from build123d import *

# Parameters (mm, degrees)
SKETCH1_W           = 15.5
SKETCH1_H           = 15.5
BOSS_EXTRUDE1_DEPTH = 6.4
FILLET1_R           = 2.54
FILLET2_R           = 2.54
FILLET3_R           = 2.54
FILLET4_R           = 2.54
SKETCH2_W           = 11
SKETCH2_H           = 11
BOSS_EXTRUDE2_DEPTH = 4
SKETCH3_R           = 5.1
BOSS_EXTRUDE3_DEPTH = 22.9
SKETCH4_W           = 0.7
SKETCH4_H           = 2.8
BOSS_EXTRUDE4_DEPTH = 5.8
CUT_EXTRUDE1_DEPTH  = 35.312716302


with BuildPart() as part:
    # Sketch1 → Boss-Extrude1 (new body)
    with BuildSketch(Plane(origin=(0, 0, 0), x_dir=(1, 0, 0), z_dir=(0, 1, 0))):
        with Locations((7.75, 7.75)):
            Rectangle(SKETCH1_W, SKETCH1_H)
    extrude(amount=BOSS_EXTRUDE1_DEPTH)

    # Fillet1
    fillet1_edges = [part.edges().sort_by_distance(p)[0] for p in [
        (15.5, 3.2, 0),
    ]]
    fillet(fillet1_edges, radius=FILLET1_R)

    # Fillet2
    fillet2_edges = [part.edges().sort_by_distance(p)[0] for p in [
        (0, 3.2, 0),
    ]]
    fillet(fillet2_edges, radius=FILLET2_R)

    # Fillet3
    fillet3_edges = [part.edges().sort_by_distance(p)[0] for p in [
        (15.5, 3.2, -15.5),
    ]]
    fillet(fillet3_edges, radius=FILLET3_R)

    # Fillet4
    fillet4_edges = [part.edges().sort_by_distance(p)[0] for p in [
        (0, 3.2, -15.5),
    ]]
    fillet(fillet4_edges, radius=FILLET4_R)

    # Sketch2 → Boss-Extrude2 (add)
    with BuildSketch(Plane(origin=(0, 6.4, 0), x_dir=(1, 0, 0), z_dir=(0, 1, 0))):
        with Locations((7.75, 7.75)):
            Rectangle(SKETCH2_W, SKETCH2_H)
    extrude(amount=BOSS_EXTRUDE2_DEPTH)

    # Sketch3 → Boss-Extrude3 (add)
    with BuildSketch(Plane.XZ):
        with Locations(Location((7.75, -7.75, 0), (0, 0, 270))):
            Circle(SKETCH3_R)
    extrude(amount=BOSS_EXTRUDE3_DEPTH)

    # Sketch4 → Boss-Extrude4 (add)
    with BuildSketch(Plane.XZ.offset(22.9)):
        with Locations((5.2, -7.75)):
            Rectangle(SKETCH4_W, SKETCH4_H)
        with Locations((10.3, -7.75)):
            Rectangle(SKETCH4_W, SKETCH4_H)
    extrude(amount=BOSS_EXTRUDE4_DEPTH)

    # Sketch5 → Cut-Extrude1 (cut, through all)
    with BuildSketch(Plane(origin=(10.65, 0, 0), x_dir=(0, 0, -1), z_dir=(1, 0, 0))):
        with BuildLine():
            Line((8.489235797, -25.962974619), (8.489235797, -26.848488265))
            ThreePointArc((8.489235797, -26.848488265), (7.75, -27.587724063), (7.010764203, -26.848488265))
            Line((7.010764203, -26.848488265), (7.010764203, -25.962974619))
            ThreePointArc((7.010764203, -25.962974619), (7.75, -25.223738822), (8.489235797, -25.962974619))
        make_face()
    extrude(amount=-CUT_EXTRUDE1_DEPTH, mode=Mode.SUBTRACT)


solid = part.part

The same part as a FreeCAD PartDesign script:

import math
import FreeCAD as App
import Part
import Sketcher
from FreeCAD import Vector
Q = App.Units.Quantity


def edges_at(feature, points):
    """Names of the edges that pass closest to the given points."""
    edges = feature.Shape.Edges
    near = lambda p: min(range(len(edges)), key=lambda i: edges[i].distToShape(Part.Vertex(*p))[0])
    return sorted({f"Edge{near(p) + 1}" for p in points})

doc = App.newDocument("Part")
body = doc.addObject("PartDesign::Body", "Body")

sketch1 = doc.addObject("Sketcher::SketchObject", "Sketch")
body.addObject(sketch1)
sketch1.AttachmentSupport = (doc.XZ_Plane, [""])
sketch1.MapMode = "FlatFace"
sketch1.addGeometry(Part.LineSegment(Vector(0, -15.5, 0), Vector(0, 0, 0)), False)
sketch1.addGeometry(Part.LineSegment(Vector(0, 0, 0), Vector(15.5, 0, 0)), False)
sketch1.addGeometry(Part.LineSegment(Vector(15.5, 0, 0), Vector(15.5, -15.5, 0)), False)
sketch1.addGeometry(Part.LineSegment(Vector(15.5, -15.5, 0), Vector(0, -15.5, 0)), False)
sketch1.addConstraint(Sketcher.Constraint("Coincident", 0, 2, 1, 1))
sketch1.addConstraint(Sketcher.Constraint("Coincident", 1, 2, 2, 1))
sketch1.addConstraint(Sketcher.Constraint("Coincident", 2, 2, 3, 1))
sketch1.addConstraint(Sketcher.Constraint("Coincident", 3, 2, 0, 1))
sketch1.addConstraint(Sketcher.Constraint("Vertical", 0))
sketch1.addConstraint(Sketcher.Constraint("Horizontal", 1))
sketch1.addConstraint(Sketcher.Constraint("Vertical", 2))
sketch1.addConstraint(Sketcher.Constraint("Horizontal", 3))
sketch1.addConstraint(Sketcher.Constraint("Coincident", 0, 2, -1, 1))
sketch1.addConstraint(Sketcher.Constraint("Equal", 3, 0))
sketch1.addConstraint(Sketcher.Constraint("DistanceX", 1, 1, 1, 2, Q("15.5 mm")))
pad1 = doc.addObject("PartDesign::Pad", "Pad")
body.addObject(pad1)
pad1.Profile = sketch1
pad1.Length = 6.4
pad1.Reversed = True
doc.recompute()

fillet = doc.addObject("PartDesign::Fillet", "Fillet")
body.addObject(fillet)
fillet.Base = (pad1, edges_at(pad1, [(15.5, 3.2, 0)]))
fillet.Radius = 2.54
doc.recompute()

fillet2 = doc.addObject("PartDesign::Fillet", "Fillet001")
body.addObject(fillet2)
fillet2.Base = (fillet, edges_at(fillet, [(0, 3.2, 0)]))
fillet2.Radius = 2.54
doc.recompute()

fillet3 = doc.addObject("PartDesign::Fillet", "Fillet002")
body.addObject(fillet3)
fillet3.Base = (fillet2, edges_at(fillet2, [(15.5, 3.2, -15.5)]))
fillet3.Radius = 2.54
doc.recompute()

fillet4 = doc.addObject("PartDesign::Fillet", "Fillet003")
body.addObject(fillet4)
fillet4.Base = (fillet3, edges_at(fillet3, [(0, 3.2, -15.5)]))
fillet4.Radius = 2.54

sketch2 = doc.addObject("Sketcher::SketchObject", "Sketch001")
body.addObject(sketch2)
sketch2.AttachmentSupport = (doc.XZ_Plane, [""])
sketch2.MapMode = "FlatFace"
sketch2.AttachmentOffset = App.Placement(Vector(0, 0, -6.4), App.Rotation())
sketch2.addGeometry(Part.LineSegment(Vector(2.25, -13.25, 0), Vector(2.25, -2.25, 0)), False)
sketch2.addGeometry(Part.LineSegment(Vector(2.25, -2.25, 0), Vector(13.25, -2.25, 0)), False)
sketch2.addGeometry(Part.LineSegment(Vector(13.25, -2.25, 0), Vector(13.25, -13.25, 0)), False)
sketch2.addGeometry(Part.LineSegment(Vector(13.25, -13.25, 0), Vector(2.25, -13.25, 0)), False)
sketch2.addConstraint(Sketcher.Constraint("Coincident", 0, 2, 1, 1))
sketch2.addConstraint(Sketcher.Constraint("Coincident", 1, 2, 2, 1))
sketch2.addConstraint(Sketcher.Constraint("Coincident", 2, 2, 3, 1))
sketch2.addConstraint(Sketcher.Constraint("Coincident", 3, 2, 0, 1))
sketch2.addConstraint(Sketcher.Constraint("Vertical", 0))
sketch2.addConstraint(Sketcher.Constraint("Horizontal", 1))
sketch2.addConstraint(Sketcher.Constraint("Vertical", 2))
sketch2.addConstraint(Sketcher.Constraint("Horizontal", 3))
sketch2.addConstraint(Sketcher.Constraint("Equal", 3, 0))
sketch2.addConstraint(Sketcher.Constraint("DistanceX", 1, 1, 1, 2, Q("11 mm")))
sketch2.addConstraint(Sketcher.Constraint("DistanceX", -1, 1, 0, 2, Q("2.25 mm")))
sketch2.addConstraint(Sketcher.Constraint("DistanceY", 0, 2, -1, 1, Q("2.25 mm")))
pad2 = doc.addObject("PartDesign::Pad", "Pad001")
body.addObject(pad2)
pad2.Profile = sketch2
pad2.Length = 4
pad2.Reversed = True

sketch3 = doc.addObject("Sketcher::SketchObject", "Sketch002")
body.addObject(sketch3)
sketch3.AttachmentSupport = (doc.XZ_Plane, [""])
sketch3.MapMode = "FlatFace"
sketch3.addGeometry(Part.Circle(Vector(7.75, -7.75, 0), Vector(0, 0, 1), 5.1), False)
sketch3.addConstraint(Sketcher.Constraint("Diameter", 0, Q("10.2 mm")))
sketch3.addConstraint(Sketcher.Constraint("DistanceX", -1, 1, 0, 3, Q("7.75 mm")))
sketch3.addConstraint(Sketcher.Constraint("DistanceY", 0, 3, -1, 1, Q("7.75 mm")))
pad3 = doc.addObject("PartDesign::Pad", "Pad002")
body.addObject(pad3)
pad3.Profile = sketch3
pad3.Length = 22.9

sketch4 = doc.addObject("Sketcher::SketchObject", "Sketch003")
body.addObject(sketch4)
sketch4.AttachmentSupport = (doc.XZ_Plane, [""])
sketch4.MapMode = "FlatFace"
sketch4.AttachmentOffset = App.Placement(Vector(0, 0, 22.9), App.Rotation())
sketch4.addGeometry(Part.LineSegment(Vector(4.85, -6.35, 0), Vector(4.85, -9.15, 0)), False)
sketch4.addGeometry(Part.LineSegment(Vector(4.85, -9.15, 0), Vector(5.55, -9.15, 0)), False)
sketch4.addGeometry(Part.LineSegment(Vector(5.55, -9.15, 0), Vector(5.55, -6.35, 0)), False)
sketch4.addGeometry(Part.LineSegment(Vector(5.55, -6.35, 0), Vector(4.85, -6.35, 0)), False)
sketch4.addGeometry(Part.LineSegment(Vector(9.95, -6.35, 0), Vector(9.95, -9.15, 0)), False)
sketch4.addGeometry(Part.LineSegment(Vector(9.95, -9.15, 0), Vector(10.65, -9.15, 0)), False)
sketch4.addGeometry(Part.LineSegment(Vector(10.65, -9.15, 0), Vector(10.65, -6.35, 0)), False)
sketch4.addGeometry(Part.LineSegment(Vector(10.65, -6.35, 0), Vector(9.95, -6.35, 0)), False)
sketch4.addConstraint(Sketcher.Constraint("Coincident", 0, 2, 1, 1))
sketch4.addConstraint(Sketcher.Constraint("Coincident", 1, 2, 2, 1))
sketch4.addConstraint(Sketcher.Constraint("Coincident", 2, 2, 3, 1))
sketch4.addConstraint(Sketcher.Constraint("Coincident", 3, 2, 0, 1))
sketch4.addConstraint(Sketcher.Constraint("Coincident", 4, 2, 5, 1))
sketch4.addConstraint(Sketcher.Constraint("Coincident", 5, 2, 6, 1))
sketch4.addConstraint(Sketcher.Constraint("Coincident", 6, 2, 7, 1))
sketch4.addConstraint(Sketcher.Constraint("Coincident", 7, 2, 4, 1))
sketch4.addConstraint(Sketcher.Constraint("Vertical", 0))
sketch4.addConstraint(Sketcher.Constraint("Horizontal", 1))
sketch4.addConstraint(Sketcher.Constraint("Vertical", 2))
sketch4.addConstraint(Sketcher.Constraint("Horizontal", 3))
sketch4.addConstraint(Sketcher.Constraint("Vertical", 4))
sketch4.addConstraint(Sketcher.Constraint("Horizontal", 5))
sketch4.addConstraint(Sketcher.Constraint("Vertical", 6))
sketch4.addConstraint(Sketcher.Constraint("Horizontal", 7))
sketch4.addConstraint(Sketcher.Constraint("Horizontal", 1, 2, 4, 2))
sketch4.addConstraint(Sketcher.Constraint("Horizontal", 3, 2, 6, 2))
sketch4.addConstraint(Sketcher.Constraint("Equal", 3, 5))
sketch4.addConstraint(Sketcher.Constraint("DistanceX", 1, 1, 1, 2, Q("0.7 mm")))
sketch4.addConstraint(Sketcher.Constraint("DistanceY", 0, 2, 0, 1, Q("2.8 mm")))
sketch4.addConstraint(Sketcher.Constraint("DistanceX", 1, 2, 4, 2, Q("4.4 mm")))
sketch4.addConstraint(Sketcher.Constraint("DistanceX", -1, 1, 0, 2, Q("4.85 mm")))
sketch4.addConstraint(Sketcher.Constraint("DistanceY", 0, 2, -1, 1, Q("9.15 mm")))
pad4 = doc.addObject("PartDesign::Pad", "Pad003")
body.addObject(pad4)
pad4.Profile = sketch4
pad4.Length = 5.8

sketch5 = doc.addObject("Sketcher::SketchObject", "Sketch004")
body.addObject(sketch5)
sketch5.AttachmentSupport = (doc.YZ_Plane, [""])
sketch5.MapMode = "FlatFace"
sketch5.AttachmentOffset = App.Placement(Vector(0, 0, 10.65), App.Rotation())
sketch5.addGeometry(Part.LineSegment(Vector(-26.848488, -8.489236, 0), Vector(-25.962975, -8.489236, 0)), False)
sketch5.addGeometry(Part.ArcOfCircle(Part.Circle(Vector(-25.962975, -7.75, 0), Vector(0, 0, 1), 0.739236), math.radians(-90), math.radians(90)), False)
sketch5.addGeometry(Part.LineSegment(Vector(-25.962975, -7.010764, 0), Vector(-26.848488, -7.010764, 0)), False)
sketch5.addGeometry(Part.ArcOfCircle(Part.Circle(Vector(-26.848488, -7.75, 0), Vector(0, 0, 1), 0.739236), math.radians(90), math.radians(270)), False)
sketch5.addConstraint(Sketcher.Constraint("Tangent", 0, 2, 1, 1))
sketch5.addConstraint(Sketcher.Constraint("Tangent", 1, 2, 2, 1))
sketch5.addConstraint(Sketcher.Constraint("Tangent", 2, 2, 3, 1))
sketch5.addConstraint(Sketcher.Constraint("Tangent", 3, 2, 0, 1))
sketch5.addConstraint(Sketcher.Constraint("Horizontal", 0))
sketch5.addConstraint(Sketcher.Constraint("Horizontal", 2))
sketch5.addConstraint(Sketcher.Constraint("DistanceY", 1, 3, -1, 1, Q("7.75 mm")))
sketch5.addConstraint(Sketcher.Constraint("Radius", 1, Q("0.739236 mm")))
sketch5.addConstraint(Sketcher.Constraint("DistanceX", 0, 1, 0, 2, Q("0.885514 mm")))
sketch5.addConstraint(Sketcher.Constraint("DistanceX", 3, 3, -1, 1, Q("26.848488 mm")))
pocket1 = doc.addObject("PartDesign::Pocket", "Pocket")
body.addObject(pocket1)
pocket1.Profile = sketch5
pocket1.Type = "ThroughAll"

doc.recompute()
